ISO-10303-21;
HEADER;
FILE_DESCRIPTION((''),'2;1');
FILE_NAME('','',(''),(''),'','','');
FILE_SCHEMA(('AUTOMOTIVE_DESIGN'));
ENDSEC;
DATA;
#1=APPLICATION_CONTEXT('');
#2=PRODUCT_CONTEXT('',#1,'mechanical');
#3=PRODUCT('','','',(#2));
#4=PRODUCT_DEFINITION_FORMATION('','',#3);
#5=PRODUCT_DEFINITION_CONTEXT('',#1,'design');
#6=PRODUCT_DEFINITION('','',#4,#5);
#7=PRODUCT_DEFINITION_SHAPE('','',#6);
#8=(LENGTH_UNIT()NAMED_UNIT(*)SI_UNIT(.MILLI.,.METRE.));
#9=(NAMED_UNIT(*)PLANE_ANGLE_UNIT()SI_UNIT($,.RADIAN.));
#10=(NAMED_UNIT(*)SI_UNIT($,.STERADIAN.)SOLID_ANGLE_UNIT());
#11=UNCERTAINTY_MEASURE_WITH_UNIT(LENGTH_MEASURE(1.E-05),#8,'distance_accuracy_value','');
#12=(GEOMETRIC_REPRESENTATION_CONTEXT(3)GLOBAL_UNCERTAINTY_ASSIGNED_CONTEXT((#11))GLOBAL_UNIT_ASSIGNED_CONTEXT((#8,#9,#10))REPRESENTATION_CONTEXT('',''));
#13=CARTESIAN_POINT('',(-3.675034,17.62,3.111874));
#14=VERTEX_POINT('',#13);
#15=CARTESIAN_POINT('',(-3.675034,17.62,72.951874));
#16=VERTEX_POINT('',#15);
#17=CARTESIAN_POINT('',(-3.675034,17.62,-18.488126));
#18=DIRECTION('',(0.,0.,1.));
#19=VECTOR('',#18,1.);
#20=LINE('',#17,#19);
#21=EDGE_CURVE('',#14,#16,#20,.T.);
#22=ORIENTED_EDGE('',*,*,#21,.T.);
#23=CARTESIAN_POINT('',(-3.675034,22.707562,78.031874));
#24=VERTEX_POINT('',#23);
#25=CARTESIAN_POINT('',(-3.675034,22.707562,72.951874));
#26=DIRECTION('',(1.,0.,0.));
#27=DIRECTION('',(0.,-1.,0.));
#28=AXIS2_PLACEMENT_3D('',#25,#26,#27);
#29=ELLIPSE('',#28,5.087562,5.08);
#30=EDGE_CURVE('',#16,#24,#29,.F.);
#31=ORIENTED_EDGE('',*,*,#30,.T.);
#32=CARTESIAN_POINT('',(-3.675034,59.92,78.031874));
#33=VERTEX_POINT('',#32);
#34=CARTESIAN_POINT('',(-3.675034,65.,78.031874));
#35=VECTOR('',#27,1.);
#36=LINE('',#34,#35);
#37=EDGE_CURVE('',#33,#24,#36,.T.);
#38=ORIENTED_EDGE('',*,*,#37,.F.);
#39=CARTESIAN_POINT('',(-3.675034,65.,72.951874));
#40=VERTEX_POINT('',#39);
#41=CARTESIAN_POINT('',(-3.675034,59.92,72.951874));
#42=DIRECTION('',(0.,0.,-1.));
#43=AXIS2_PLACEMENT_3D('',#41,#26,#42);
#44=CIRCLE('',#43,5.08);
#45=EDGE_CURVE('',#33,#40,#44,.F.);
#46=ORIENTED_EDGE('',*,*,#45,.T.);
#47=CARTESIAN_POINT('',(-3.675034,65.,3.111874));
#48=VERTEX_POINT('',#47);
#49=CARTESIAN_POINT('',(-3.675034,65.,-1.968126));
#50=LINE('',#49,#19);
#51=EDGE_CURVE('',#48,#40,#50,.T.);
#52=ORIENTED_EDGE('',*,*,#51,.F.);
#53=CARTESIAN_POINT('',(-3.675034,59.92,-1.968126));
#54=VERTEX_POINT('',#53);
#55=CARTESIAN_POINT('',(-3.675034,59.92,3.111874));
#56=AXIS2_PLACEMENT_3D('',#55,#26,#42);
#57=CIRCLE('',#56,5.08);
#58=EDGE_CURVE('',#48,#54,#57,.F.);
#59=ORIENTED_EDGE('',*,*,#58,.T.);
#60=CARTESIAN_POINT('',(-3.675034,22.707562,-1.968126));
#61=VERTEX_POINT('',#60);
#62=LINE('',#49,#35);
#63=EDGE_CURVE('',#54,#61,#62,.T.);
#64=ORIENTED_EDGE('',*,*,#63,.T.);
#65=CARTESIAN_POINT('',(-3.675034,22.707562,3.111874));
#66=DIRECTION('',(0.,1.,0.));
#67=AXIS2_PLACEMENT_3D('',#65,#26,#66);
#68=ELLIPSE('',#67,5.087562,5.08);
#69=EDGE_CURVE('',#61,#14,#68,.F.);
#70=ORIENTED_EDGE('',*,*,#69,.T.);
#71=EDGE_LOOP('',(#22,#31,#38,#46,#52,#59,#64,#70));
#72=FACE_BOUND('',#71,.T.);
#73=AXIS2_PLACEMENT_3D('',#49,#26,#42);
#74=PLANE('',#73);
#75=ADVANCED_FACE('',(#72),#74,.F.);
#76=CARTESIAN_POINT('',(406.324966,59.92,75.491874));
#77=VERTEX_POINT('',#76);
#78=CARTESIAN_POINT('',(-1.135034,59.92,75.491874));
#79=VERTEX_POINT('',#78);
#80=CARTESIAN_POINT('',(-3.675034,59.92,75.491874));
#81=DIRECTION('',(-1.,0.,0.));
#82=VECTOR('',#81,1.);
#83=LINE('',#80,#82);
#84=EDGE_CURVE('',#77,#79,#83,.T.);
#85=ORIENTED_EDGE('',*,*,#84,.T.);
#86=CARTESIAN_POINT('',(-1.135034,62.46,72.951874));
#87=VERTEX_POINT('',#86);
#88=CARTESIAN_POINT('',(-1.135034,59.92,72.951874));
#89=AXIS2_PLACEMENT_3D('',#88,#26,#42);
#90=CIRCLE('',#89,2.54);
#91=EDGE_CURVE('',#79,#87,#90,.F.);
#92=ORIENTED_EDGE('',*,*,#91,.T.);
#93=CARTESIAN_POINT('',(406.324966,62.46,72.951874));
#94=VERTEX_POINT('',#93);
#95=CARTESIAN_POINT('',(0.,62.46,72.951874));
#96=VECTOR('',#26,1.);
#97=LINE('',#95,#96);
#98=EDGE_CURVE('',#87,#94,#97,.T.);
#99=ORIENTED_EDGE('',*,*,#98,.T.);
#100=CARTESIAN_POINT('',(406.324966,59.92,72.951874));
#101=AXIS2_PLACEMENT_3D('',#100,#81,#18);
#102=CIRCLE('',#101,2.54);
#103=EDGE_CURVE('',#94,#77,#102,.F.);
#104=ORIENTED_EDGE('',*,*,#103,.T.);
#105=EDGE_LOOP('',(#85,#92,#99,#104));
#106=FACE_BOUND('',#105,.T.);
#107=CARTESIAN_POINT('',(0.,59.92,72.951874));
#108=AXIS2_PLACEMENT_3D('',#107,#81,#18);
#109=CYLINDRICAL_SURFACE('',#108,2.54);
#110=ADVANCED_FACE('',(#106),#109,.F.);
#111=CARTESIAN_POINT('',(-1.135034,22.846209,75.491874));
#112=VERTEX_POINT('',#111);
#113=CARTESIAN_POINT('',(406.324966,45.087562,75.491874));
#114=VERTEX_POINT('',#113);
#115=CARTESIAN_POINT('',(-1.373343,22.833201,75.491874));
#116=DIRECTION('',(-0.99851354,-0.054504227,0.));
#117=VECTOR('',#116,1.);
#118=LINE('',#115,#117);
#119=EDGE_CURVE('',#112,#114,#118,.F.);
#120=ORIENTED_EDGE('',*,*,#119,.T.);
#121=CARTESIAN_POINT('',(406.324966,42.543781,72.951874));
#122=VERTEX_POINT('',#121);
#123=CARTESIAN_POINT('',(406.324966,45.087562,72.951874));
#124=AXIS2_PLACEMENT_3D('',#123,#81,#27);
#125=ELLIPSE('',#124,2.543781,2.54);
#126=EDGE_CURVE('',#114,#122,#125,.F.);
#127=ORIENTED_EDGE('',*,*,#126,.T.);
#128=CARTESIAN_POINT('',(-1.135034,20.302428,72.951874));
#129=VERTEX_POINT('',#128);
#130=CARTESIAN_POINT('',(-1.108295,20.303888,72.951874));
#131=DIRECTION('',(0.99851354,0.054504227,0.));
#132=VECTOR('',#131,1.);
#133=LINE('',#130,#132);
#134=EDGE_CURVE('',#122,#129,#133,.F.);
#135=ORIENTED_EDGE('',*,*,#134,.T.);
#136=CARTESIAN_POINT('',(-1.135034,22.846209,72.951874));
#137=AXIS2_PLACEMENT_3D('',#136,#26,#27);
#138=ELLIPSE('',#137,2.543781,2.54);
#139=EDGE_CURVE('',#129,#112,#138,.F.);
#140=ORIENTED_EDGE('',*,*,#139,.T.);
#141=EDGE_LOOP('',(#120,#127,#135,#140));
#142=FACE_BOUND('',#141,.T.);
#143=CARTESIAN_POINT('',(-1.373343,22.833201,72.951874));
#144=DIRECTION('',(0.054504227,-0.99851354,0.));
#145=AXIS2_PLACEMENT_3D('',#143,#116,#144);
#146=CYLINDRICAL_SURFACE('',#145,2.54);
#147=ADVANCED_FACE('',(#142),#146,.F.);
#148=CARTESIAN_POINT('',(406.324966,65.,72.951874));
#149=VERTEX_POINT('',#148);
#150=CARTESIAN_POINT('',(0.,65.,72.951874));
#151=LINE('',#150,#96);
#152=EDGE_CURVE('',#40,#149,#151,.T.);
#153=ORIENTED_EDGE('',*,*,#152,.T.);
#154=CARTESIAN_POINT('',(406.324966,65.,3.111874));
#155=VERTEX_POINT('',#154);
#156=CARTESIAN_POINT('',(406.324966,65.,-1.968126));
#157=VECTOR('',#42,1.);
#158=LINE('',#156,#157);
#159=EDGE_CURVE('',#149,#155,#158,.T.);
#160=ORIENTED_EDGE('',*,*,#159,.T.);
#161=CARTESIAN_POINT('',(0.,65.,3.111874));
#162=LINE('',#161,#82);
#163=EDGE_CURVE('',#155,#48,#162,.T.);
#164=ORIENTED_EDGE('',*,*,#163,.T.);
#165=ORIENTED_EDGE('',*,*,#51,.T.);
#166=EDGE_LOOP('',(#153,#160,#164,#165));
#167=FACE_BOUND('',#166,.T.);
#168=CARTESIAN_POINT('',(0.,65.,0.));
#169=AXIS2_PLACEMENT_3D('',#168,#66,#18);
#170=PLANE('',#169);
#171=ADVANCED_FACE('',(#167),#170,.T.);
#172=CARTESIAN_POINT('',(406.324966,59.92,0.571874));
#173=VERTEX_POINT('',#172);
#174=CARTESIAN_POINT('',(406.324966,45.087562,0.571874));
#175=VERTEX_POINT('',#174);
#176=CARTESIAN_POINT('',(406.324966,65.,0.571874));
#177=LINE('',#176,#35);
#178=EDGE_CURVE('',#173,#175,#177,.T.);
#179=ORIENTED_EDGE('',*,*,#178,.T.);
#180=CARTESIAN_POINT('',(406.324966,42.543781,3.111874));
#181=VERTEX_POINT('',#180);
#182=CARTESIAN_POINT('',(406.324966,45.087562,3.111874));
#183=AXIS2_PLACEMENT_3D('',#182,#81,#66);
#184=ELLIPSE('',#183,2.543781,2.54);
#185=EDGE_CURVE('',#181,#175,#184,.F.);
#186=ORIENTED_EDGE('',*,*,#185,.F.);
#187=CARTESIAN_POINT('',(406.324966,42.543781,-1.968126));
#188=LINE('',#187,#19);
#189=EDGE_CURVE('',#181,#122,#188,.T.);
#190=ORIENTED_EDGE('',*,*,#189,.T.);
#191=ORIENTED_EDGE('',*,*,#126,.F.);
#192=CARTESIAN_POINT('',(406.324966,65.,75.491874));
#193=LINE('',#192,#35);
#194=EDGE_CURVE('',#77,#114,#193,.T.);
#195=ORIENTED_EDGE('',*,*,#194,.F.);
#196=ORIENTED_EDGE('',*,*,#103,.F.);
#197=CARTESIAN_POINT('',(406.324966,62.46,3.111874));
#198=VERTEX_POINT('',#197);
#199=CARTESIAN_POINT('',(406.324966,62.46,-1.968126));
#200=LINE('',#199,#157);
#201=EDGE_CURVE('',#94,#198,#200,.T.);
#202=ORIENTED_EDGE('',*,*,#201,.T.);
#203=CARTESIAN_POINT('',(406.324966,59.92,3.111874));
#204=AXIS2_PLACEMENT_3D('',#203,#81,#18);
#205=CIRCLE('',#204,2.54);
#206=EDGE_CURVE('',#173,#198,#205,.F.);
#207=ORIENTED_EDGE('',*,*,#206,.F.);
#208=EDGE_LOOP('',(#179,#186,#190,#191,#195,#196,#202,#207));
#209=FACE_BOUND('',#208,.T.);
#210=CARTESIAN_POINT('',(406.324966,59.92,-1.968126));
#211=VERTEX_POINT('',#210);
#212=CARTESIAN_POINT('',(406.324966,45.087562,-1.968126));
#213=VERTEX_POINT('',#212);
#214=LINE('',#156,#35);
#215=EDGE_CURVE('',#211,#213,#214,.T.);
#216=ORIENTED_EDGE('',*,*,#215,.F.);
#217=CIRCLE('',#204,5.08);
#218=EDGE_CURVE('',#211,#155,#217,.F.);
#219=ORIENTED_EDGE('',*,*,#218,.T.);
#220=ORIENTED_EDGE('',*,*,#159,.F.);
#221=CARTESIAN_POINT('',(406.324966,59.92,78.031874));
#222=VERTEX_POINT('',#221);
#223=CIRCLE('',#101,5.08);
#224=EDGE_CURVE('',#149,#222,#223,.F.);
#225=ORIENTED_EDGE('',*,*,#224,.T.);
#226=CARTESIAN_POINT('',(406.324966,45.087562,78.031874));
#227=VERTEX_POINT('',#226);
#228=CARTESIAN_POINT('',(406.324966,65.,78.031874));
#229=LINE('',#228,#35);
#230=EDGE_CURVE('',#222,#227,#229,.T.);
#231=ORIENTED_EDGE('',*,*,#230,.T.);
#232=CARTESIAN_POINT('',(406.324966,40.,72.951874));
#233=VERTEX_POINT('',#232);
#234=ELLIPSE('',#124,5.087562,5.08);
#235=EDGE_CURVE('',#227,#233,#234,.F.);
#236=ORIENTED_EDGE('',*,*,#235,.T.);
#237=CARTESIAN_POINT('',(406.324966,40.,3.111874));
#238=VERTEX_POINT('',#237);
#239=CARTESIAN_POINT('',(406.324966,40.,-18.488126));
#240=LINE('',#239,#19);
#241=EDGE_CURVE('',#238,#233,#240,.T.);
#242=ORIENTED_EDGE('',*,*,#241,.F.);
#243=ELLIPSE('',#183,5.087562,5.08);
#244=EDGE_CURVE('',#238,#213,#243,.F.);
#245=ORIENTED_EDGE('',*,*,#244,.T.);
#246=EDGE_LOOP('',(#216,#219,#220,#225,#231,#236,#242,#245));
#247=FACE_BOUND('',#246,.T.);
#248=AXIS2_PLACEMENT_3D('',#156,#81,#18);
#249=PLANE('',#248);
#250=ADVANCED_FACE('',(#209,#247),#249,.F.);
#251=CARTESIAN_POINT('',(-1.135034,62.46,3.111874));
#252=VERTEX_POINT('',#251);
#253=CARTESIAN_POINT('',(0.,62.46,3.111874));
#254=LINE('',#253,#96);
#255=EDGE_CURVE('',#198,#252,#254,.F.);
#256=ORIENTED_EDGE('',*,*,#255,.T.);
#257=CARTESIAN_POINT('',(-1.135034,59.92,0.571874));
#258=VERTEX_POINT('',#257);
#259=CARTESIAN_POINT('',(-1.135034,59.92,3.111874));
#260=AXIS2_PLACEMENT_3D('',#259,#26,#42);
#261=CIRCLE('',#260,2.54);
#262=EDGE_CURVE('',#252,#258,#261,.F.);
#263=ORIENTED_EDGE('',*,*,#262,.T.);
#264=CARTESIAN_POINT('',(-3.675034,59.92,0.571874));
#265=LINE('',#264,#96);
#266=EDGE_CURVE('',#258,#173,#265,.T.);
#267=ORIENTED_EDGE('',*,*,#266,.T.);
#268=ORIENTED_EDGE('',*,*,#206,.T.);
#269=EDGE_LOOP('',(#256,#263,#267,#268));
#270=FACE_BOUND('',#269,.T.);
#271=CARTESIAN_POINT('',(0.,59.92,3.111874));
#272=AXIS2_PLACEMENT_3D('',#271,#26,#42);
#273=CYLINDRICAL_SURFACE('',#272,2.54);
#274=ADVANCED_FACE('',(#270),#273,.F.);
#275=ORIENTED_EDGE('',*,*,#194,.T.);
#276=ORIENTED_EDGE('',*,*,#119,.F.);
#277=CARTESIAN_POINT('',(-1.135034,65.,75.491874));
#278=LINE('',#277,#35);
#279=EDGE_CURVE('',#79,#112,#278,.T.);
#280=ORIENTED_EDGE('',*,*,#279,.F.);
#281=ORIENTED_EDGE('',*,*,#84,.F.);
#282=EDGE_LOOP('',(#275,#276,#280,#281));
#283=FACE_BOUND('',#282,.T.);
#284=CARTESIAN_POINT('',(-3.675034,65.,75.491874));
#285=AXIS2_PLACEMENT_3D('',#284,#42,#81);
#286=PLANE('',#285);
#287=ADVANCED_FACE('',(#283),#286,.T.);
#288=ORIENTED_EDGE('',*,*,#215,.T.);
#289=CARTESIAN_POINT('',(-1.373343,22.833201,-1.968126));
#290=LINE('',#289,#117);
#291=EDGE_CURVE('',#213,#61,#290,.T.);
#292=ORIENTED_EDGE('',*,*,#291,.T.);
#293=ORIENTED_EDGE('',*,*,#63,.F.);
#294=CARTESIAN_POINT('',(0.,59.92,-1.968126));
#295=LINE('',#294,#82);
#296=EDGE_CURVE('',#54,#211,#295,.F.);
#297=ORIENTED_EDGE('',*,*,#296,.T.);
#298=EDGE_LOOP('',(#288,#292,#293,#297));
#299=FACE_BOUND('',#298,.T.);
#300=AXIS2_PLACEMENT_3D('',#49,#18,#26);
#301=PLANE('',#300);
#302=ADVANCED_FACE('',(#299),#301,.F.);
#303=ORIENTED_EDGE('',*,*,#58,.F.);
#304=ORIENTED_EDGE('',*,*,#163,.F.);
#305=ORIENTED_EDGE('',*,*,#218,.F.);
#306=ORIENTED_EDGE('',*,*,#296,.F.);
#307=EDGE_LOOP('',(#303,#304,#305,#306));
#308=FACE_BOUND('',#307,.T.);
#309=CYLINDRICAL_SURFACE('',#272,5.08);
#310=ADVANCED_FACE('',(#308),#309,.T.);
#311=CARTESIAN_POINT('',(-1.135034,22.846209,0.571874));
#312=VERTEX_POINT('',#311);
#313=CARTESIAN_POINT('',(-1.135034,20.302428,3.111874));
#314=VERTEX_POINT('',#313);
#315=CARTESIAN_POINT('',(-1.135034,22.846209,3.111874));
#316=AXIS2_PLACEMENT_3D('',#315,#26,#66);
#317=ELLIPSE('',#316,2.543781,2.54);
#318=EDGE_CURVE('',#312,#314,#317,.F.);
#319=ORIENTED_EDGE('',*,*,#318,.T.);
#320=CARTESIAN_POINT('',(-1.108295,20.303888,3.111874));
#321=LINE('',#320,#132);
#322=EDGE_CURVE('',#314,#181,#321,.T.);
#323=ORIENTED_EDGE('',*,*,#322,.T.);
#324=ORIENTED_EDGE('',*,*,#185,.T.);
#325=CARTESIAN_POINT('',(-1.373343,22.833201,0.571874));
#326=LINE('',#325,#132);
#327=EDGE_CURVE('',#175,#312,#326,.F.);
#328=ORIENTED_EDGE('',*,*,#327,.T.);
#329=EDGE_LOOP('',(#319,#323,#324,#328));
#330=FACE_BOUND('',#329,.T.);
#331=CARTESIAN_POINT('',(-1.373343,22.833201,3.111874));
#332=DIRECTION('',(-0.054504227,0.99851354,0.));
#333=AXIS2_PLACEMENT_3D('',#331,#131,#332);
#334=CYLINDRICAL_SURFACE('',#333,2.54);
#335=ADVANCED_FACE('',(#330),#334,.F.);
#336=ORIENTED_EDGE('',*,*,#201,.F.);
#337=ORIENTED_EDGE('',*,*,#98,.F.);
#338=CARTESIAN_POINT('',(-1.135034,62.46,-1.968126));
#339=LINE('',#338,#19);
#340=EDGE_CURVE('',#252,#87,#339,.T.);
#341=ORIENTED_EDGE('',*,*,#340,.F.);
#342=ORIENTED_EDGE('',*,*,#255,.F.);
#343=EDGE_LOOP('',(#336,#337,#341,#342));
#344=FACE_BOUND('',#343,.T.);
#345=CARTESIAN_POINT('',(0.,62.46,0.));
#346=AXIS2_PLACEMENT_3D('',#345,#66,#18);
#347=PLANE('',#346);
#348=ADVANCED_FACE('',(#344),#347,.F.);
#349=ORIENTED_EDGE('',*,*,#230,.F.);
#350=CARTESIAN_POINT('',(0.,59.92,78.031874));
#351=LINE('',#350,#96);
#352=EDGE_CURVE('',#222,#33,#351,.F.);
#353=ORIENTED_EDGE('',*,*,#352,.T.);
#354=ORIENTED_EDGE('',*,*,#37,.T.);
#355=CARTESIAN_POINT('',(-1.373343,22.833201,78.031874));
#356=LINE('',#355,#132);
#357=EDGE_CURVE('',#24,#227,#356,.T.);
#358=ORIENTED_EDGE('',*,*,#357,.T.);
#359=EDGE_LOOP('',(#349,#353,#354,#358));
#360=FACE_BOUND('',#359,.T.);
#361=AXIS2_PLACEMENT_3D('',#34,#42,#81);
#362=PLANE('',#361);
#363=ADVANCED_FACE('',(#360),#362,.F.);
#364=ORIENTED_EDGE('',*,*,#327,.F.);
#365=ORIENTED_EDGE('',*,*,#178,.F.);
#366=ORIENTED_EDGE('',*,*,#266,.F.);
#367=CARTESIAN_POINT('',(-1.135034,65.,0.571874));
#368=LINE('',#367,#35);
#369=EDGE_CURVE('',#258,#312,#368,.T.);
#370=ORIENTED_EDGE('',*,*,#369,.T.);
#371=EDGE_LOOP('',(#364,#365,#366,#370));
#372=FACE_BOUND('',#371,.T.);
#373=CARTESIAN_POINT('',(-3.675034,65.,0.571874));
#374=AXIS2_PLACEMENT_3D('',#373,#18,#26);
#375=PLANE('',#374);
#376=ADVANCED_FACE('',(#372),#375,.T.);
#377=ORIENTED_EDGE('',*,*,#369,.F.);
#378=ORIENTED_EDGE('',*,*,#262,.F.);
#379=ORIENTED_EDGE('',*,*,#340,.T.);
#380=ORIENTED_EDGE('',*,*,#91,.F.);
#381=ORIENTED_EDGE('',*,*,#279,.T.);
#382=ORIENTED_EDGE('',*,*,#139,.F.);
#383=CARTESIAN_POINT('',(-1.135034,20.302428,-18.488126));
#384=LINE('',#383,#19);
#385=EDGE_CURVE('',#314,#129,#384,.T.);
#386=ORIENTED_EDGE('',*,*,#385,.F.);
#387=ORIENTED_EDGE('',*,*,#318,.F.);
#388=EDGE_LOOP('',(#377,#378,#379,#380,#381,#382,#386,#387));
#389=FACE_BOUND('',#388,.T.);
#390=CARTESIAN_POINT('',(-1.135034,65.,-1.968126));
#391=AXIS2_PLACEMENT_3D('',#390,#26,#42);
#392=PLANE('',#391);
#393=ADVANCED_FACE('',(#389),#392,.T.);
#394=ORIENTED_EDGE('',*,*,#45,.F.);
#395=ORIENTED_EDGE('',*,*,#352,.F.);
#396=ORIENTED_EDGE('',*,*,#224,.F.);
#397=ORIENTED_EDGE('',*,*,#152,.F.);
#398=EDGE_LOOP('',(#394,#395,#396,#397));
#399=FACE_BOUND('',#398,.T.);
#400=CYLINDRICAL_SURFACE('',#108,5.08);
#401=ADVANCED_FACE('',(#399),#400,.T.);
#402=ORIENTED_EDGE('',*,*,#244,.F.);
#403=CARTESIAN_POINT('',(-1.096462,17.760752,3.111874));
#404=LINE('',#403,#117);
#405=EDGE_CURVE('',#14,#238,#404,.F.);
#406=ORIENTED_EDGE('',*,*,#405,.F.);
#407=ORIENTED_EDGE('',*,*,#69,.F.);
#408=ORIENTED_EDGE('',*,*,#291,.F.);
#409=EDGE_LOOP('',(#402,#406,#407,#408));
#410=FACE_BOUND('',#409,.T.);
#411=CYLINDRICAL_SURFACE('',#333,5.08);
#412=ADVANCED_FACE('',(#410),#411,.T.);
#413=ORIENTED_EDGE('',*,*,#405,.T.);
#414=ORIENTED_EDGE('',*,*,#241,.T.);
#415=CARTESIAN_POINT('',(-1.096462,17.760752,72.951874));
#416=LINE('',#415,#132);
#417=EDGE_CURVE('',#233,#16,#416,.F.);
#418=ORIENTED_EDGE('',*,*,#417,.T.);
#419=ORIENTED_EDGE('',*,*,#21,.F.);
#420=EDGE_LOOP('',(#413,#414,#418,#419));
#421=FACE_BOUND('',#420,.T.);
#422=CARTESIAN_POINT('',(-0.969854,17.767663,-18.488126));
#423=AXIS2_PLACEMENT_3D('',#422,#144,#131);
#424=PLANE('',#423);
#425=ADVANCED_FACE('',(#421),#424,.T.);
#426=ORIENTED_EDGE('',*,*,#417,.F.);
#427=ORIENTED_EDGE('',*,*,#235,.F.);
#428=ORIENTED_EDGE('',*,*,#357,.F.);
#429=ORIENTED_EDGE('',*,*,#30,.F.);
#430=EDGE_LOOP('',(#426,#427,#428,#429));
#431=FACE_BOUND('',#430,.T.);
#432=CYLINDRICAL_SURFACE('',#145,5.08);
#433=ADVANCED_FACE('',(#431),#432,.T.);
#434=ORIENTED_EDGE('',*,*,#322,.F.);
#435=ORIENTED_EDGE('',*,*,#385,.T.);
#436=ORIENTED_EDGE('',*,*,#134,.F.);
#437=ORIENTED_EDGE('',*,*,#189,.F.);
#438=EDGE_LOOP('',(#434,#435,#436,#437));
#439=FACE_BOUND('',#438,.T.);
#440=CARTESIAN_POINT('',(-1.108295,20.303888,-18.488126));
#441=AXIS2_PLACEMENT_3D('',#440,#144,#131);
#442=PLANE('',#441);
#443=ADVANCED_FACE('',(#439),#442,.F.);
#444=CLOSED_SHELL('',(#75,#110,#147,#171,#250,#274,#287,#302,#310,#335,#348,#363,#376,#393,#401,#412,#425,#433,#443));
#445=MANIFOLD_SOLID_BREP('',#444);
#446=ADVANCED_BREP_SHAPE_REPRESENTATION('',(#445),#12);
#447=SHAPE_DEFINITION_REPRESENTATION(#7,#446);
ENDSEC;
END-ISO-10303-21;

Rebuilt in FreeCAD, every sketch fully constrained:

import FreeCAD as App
import Part
import Sketcher


def edges_at(feature, points):
    """Names of the edges that pass closest to the given points."""
    edges = feature.Shape.Edges
    near = lambda p: min(range(len(edges)), key=lambda i: edges[i].distToShape(Part.Vertex(*p))[0])
    return sorted({f"Edge{near(p) + 1}" for p in points})


def faces_at(feature, points):
    """Names of the faces that lie closest to the given points."""
    faces = feature.Shape.Faces
    near = lambda p: min(range(len(faces)), key=lambda i: faces[i].distToShape(Part.Vertex(*p))[0])
    return sorted({f"Face{near(p) + 1}" for p in points})

doc = App.newDocument("Part")
body = doc.addObject("PartDesign::Body", "Body")

# Sketch on XZ plane
sketch1 = body.newObject("Sketcher::SketchObject", "Sketch")
sketch1.AttachmentSupport = (doc.getObject("XZ_Plane"), [""])
sketch1.MapMode = "FlatFace"
sketch1.addGeometry([
    Part.LineSegment(App.Vector(-4, -2, 0), App.Vector(-4, 78, 0)),
    Part.LineSegment(App.Vector(-4, 78, 0), App.Vector(406, 78, 0)),
    Part.LineSegment(App.Vector(406, 78, 0), App.Vector(406, -2, 0)),
    Part.LineSegment(App.Vector(406, -2, 0), App.Vector(-4, -2, 0)),
], False)
sketch1.addConstraint([
    Sketcher.Constraint("Coincident", 0, 2, 1, 1),
    Sketcher.Constraint("Coincident", 1, 2, 2, 1),
    Sketcher.Constraint("Coincident", 2, 2, 3, 1),
    Sketcher.Constraint("Coincident", 3, 2, 0, 1),
    Sketcher.Constraint("Vertical", 0),
    Sketcher.Constraint("Horizontal", 1),
    Sketcher.Constraint("Vertical", 2),
    Sketcher.Constraint("Horizontal", 3),
    Sketcher.Constraint("DistanceX", 1, 1, 1, 2, 410.0),
    Sketcher.Constraint("DistanceY", 0, 1, 0, 2, 80.0),
    Sketcher.Constraint("DistanceX", 0, 2, -1, 1, 3.675034),
    Sketcher.Constraint("DistanceY", -1, 1, 0, 2, 78.031874),
])
pad1 = body.newObject("PartDesign::Pad", "Pad")
pad1.Profile = sketch1
pad1.Length = 65
pad1.Reversed = True

# Sketch on XY plane
sketch2 = body.newObject("Sketcher::SketchObject", "Sketch001")
sketch2.AttachmentSupport = (doc.getObject("XY_Plane"), [""])
sketch2.MapMode = "FlatFace"
sketch2.AttachmentOffset = App.Placement(App.Vector(0, 0, 78.031874), App.Rotation())
sketch2.addGeometry([
    Part.LineSegment(App.Vector(406, 40, 0), App.Vector(-4, 18, 0)),  # 0
    Part.LineSegment(App.Vector(-4, 18, 0), App.Vector(-44, 91, 0)),  # 1
    Part.LineSegment(App.Vector(-44, 91, 0), App.Vector(-12, -66, 0)),  # 2
    Part.LineSegment(App.Vector(-12, -66, 0), App.Vector(452, -78, 0)),  # 3
    Part.LineSegment(App.Vector(452, -78, 0), App.Vector(406, 40, 0)),  # 4
], False)
sketch2.addConstraint([
    Sketcher.Constraint("Coincident", 0, 2, 1, 1),
    Sketcher.Constraint("Coincident", 1, 2, 2, 1),
    Sketcher.Constraint("Coincident", 2, 2, 3, 1),
    Sketcher.Constraint("Coincident", 3, 2, 4, 1),
    Sketcher.Constraint("Coincident", 4, 2, 0, 1),
    Sketcher.Constraint("DistanceY", -1, 1, 4, 2, 40.0),
    Sketcher.Constraint("DistanceX", 0, 2, 4, 2, 410.0),
    Sketcher.Constraint("DistanceY", -1, 1, 0, 2, 17.62),
    Sketcher.Constraint("DistanceX", -1, 1, 3, 2, 452.4713),
    Sketcher.Constraint("Distance", 3, 464.925058),
    Sketcher.Constraint("Distance", 4, 126.837771),
    Sketcher.Constraint("DistanceX", 1, 2, 0, 2, 39.856191),
    Sketcher.Constraint("DistanceY", 2, 2, 1, 2, 156.51687),
    Sketcher.Constraint("Distance", 1, 83.446623),
    Sketcher.Constraint("Distance", 2, 159.605508),
])
pocket1 = body.newObject("PartDesign::Pocket", "Pocket")
pocket1.Profile = sketch2
pocket1.Length = 96.52
doc.recompute()

fillet = body.newObject("PartDesign::Fillet", "Fillet")
fillet.Base = (pocket1, edges_at(pocket1, [(201.325, 65, 78.032)]))
fillet.Radius = 5.08
doc.recompute()

fillet2 = body.newObject("PartDesign::Fillet", "Fillet001")
fillet2.Base = (fillet, edges_at(fillet, [(201.325, 28.81, 78.032)]))
fillet2.Radius = 5.08
doc.recompute()

fillet3 = body.newObject("PartDesign::Fillet", "Fillet002")
fillet3.Base = (fillet2, edges_at(fillet2, [(201.325, 65, -1.968)]))
fillet3.Radius = 5.08
doc.recompute()

fillet4 = body.newObject("PartDesign::Fillet", "Fillet003")
fillet4.Base = (fillet3, edges_at(fillet3, [(201.325, 28.81, -1.968)]))
fillet4.Radius = 5.08
doc.recompute()

thickness = body.newObject("PartDesign::Thickness", "Thickness")
thickness.Base = (fillet4, faces_at(fillet4, [(406.325, 52.5, 38.032)]))
thickness.Value = 2.54
thickness.Reversed = True
thickness.Join = "Intersection"

doc.recompute()
